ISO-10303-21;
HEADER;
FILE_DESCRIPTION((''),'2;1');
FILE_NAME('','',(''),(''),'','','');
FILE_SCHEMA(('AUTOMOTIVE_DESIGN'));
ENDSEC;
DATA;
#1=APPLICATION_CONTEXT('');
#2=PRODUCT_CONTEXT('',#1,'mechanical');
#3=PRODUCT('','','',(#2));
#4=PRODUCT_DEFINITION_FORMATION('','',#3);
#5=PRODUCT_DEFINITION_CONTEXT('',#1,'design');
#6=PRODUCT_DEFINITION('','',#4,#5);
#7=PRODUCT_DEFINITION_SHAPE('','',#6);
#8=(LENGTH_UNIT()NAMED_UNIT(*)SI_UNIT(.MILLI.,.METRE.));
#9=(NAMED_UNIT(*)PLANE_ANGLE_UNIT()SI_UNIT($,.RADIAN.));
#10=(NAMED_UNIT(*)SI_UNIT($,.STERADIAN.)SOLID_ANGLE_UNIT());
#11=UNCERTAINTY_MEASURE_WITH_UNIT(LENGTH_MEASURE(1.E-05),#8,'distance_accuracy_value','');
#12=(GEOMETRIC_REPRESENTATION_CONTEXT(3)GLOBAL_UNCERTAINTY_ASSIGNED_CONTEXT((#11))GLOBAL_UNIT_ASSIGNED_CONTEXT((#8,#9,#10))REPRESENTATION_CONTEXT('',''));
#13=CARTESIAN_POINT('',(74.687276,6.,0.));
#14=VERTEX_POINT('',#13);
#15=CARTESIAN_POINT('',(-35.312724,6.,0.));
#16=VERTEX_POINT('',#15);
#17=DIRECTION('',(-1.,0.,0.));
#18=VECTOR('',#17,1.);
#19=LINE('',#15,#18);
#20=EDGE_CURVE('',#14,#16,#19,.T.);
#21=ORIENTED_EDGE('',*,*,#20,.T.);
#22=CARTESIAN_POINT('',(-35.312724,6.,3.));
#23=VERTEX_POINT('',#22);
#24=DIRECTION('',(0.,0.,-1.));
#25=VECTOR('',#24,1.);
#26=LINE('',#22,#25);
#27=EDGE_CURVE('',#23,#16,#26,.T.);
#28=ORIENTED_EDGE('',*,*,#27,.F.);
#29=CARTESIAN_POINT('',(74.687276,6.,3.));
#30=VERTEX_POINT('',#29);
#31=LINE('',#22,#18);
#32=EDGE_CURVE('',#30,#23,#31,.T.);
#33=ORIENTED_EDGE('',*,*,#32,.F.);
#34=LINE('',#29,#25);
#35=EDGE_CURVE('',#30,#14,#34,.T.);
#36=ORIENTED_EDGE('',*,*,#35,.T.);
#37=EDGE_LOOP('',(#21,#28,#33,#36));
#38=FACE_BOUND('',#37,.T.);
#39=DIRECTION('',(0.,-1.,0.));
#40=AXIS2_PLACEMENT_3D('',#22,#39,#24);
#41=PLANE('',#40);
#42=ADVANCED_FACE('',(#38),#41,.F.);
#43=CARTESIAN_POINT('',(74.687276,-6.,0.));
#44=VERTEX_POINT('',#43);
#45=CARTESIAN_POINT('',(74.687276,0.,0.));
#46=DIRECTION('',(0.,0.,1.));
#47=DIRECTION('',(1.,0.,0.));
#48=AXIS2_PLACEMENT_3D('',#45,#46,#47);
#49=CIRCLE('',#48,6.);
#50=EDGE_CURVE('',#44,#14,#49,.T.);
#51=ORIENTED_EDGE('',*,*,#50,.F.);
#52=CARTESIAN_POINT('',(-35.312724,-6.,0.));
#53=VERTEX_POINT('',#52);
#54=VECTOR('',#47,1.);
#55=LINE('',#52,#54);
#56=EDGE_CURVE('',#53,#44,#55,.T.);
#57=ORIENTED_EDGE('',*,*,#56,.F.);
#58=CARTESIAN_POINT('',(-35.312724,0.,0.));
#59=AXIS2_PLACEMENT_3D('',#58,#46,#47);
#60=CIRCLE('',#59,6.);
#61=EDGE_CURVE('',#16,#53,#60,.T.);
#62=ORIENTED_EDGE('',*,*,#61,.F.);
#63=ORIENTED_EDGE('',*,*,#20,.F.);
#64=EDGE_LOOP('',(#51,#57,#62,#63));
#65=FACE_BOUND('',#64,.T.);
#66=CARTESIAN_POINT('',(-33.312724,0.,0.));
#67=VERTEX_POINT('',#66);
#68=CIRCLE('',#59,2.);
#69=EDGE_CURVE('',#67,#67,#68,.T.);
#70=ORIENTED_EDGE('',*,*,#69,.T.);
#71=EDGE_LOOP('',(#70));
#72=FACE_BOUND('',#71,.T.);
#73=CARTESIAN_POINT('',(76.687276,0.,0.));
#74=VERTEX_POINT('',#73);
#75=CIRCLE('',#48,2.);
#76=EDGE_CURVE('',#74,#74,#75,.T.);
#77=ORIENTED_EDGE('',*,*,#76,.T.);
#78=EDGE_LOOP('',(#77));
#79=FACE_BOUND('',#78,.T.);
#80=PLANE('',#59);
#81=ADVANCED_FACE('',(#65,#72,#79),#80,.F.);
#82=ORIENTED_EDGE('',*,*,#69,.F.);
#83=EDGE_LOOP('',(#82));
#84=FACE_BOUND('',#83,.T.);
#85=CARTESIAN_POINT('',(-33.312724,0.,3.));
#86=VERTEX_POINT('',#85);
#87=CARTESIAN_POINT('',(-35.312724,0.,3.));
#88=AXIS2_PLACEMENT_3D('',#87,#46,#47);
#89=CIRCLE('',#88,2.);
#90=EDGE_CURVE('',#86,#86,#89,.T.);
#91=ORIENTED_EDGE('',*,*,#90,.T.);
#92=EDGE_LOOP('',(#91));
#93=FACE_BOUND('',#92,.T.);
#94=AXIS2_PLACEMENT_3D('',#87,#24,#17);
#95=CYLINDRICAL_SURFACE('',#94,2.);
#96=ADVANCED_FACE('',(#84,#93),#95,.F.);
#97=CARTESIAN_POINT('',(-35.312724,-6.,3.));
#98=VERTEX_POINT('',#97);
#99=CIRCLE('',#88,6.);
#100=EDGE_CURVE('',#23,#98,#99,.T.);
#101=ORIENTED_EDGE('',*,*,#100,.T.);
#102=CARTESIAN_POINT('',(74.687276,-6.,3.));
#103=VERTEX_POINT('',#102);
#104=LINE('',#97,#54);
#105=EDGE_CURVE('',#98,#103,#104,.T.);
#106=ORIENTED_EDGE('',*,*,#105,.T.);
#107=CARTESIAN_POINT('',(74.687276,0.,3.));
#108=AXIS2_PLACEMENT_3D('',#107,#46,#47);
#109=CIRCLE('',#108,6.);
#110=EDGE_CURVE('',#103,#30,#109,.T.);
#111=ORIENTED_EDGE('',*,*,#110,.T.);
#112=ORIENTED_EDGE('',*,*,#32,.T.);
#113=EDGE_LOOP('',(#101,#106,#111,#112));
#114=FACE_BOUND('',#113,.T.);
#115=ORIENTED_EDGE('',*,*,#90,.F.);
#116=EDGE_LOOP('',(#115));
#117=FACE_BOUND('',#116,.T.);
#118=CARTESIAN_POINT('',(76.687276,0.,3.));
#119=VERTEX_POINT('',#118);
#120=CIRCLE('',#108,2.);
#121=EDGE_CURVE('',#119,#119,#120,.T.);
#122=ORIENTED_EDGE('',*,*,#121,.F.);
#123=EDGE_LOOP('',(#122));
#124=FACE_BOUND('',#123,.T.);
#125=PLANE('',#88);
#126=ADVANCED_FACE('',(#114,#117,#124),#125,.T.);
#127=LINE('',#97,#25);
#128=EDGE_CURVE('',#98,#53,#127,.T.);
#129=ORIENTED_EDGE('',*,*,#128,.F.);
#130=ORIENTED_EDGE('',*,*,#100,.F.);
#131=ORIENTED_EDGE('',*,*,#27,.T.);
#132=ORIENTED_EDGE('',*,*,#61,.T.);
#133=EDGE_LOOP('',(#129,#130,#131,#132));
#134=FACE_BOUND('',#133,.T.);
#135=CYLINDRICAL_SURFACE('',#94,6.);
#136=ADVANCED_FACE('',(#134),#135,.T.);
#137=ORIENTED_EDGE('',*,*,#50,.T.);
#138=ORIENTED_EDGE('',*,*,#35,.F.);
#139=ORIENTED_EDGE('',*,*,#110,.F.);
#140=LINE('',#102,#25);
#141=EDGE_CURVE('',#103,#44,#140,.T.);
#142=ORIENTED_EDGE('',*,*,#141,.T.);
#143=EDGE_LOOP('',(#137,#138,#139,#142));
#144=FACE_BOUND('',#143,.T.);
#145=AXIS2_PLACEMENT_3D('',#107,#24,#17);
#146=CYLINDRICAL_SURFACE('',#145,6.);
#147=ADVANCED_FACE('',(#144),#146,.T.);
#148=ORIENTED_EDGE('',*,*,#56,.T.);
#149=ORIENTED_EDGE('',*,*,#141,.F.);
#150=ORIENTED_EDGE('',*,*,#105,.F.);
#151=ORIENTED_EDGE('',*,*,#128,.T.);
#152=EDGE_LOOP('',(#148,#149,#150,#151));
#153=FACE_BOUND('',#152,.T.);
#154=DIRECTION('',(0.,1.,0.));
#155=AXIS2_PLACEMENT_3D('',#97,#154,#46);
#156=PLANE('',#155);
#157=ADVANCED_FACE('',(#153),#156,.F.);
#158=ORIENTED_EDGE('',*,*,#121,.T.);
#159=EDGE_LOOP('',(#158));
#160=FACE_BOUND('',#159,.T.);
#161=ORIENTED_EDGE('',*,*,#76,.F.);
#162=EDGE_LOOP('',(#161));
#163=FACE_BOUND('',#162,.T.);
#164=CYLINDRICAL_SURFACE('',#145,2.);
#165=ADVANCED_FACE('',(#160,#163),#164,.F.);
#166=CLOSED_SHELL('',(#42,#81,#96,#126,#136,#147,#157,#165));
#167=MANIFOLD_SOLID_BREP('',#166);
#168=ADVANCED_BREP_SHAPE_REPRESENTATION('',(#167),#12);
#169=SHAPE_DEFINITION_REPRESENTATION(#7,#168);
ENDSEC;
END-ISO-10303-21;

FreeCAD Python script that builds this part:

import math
import FreeCAD as App
import Part
import Sketcher

doc = App.newDocument("Part")
body = doc.addObject("PartDesign::Body", "Body")

# Sketch on XY plane
sketch1 = doc.addObject("Sketcher::SketchObject", "Sketch")
body.addObject(sketch1)
sketch1.AttachmentSupport = (doc.XY_Plane, [""])
sketch1.MapMode = "FlatFace"
sketch1.addGeometry([
    Part.LineSegment(App.Vector(74.687276, 6, 0), App.Vector(-35.312724, 6, 0)),  # 0
    Part.ArcOfCircle(Part.Circle(App.Vector(-35.312724, 0, 0), App.Vector(0, 0, 1), 6), math.radians(90), math.radians(270)),  # 1
    Part.LineSegment(App.Vector(-35.312724, -6, 0), App.Vector(74.687276, -6, 0)),  # 2
    Part.ArcOfCircle(Part.Circle(App.Vector(74.687276, 0, 0), App.Vector(0, 0, 1), 6), math.radians(-90), math.radians(90)),  # 3
    Part.Circle(App.Vector(74.687276, 0, 0), App.Vector(0, 0, 1), 2),  # 4
    Part.Circle(App.Vector(-35.312724, 0, 0), App.Vector(0, 0, 1), 2),  # 5
], False)
sketch1.addConstraint([
    Sketcher.Constraint("Tangent", 0, 2, 1, 1),
    Sketcher.Constraint("Tangent", 1, 2, 2, 1),
    Sketcher.Constraint("Tangent", 2, 2, 3, 1),
    Sketcher.Constraint("Tangent", 3, 2, 0, 1),
    Sketcher.Constraint("Horizontal", 0),
    Sketcher.Constraint("Horizontal", 2),
    Sketcher.Constraint("Coincident", 4, 3, 3, 3),
    Sketcher.Constraint("Coincident", 5, 3, 1, 3),
    Sketcher.Constraint("Equal", 4, 5),
    Sketcher.Constraint("PointOnObject", 1, 3, -1),
    Sketcher.Constraint("Diameter", 4, 4.0),
    Sketcher.Constraint("Radius", 1, 6.0),
    Sketcher.Constraint("DistanceX", 0, 2, 0, 1, 110.0),
    Sketcher.Constraint("DistanceX", 1, 3, -1, 1, 35.312724),
])
pad1 = doc.addObject("PartDesign::Pad", "Pad")
body.addObject(pad1)
pad1.Profile = sketch1
pad1.Length = 3

doc.recompute()
